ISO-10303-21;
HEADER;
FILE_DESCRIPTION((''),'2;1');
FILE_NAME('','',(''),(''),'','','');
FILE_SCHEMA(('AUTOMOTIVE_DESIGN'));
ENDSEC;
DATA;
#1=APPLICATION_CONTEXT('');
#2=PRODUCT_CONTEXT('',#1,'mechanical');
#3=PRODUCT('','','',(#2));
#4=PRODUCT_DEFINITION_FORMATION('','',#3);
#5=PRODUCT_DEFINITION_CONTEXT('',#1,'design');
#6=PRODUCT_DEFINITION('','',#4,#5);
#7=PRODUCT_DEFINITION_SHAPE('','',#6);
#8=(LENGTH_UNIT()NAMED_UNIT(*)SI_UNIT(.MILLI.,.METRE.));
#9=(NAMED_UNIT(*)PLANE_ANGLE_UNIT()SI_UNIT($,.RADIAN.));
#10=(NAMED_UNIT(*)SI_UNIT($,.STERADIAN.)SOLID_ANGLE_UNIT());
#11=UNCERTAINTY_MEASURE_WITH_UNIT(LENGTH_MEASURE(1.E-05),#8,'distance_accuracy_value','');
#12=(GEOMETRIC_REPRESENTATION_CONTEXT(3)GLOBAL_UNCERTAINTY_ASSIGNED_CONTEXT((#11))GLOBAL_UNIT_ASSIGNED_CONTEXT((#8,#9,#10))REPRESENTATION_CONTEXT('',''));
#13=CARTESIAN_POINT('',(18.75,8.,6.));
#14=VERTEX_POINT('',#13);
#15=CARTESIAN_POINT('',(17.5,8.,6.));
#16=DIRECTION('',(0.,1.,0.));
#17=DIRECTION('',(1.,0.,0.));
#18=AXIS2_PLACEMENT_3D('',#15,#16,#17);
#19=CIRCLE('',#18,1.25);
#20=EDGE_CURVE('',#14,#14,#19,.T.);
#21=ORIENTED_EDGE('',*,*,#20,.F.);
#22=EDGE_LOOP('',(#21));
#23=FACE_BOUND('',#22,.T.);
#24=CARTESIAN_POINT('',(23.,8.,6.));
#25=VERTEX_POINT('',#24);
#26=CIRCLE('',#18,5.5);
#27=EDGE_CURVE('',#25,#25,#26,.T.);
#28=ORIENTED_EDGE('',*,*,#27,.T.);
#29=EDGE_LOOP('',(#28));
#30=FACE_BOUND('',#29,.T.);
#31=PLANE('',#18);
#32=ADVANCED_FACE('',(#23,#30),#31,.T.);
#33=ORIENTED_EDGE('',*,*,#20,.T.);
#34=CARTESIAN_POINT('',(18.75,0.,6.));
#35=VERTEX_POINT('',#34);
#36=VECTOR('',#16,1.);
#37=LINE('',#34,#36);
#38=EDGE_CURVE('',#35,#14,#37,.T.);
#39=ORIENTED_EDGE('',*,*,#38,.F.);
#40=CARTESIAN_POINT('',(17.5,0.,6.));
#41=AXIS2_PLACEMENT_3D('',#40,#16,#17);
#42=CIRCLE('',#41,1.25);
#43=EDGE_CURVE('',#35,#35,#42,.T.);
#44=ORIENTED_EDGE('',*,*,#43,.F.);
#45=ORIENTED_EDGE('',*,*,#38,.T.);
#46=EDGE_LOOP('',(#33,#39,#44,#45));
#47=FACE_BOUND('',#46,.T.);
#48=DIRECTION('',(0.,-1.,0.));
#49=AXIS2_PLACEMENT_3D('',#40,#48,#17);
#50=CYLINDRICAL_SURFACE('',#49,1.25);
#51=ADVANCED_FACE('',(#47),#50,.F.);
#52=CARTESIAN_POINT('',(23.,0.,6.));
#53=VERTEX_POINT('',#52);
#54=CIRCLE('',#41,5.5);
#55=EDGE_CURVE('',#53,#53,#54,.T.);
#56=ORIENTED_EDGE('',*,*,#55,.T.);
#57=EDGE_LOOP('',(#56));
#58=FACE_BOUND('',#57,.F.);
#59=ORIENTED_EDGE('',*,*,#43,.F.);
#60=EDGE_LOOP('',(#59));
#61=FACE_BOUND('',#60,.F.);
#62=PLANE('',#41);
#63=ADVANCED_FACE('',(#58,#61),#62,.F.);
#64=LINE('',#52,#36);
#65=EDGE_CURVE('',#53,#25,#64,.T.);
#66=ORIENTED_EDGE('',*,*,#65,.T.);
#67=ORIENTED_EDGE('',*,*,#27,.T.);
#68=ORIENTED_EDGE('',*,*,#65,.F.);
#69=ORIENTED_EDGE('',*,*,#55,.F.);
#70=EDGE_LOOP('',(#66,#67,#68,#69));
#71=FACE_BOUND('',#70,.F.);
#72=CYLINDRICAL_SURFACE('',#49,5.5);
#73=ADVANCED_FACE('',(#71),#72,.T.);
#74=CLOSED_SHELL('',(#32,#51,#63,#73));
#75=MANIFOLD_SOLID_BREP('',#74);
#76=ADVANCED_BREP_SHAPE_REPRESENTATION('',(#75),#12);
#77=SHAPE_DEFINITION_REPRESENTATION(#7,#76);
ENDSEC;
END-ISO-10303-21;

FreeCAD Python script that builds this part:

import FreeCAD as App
import Part
import Sketcher
from FreeCAD import Vector
Q = App.Units.Quantity

doc = App.newDocument("Part")
body = doc.addObject("PartDesign::Body", "Body")

# Sketch on XY plane
sketch1 = doc.addObject("Sketcher::SketchObject", "Sketch")
body.addObject(sketch1)
sketch1.AttachmentSupport = (doc.XY_Plane, [""])
sketch1.MapMode = "FlatFace"
sketch1.addGeometry(Part.Circle(Vector(0, 0, 0), Vector(0, 0, 1), 1.2), False)
sketch1.addConstraint(Sketcher.Constraint("Coincident", 0, 3, -1, 1))
sketch1.addConstraint(Sketcher.Constraint("Diameter", 0, Q("2.5 mm")))
pad1 = doc.addObject("PartDesign::Pad", "Pad")
body.addObject(pad1)
pad1.Profile = sketch1
pad1.Length = 8
body2 = doc.addObject("PartDesign::Body", "Body001")
doc.recompute()

body.Placement = App.Placement(Vector(0, 0, 0), App.Rotation(Vector(1, 0, 0), 270))
boolean = doc.addObject("PartDesign::Boolean", "Boolean")
body2.addObject(boolean)
boolean.Type = "Fuse"
boolean.addObjects([body])
body3 = doc.addObject("PartDesign::Body", "Body002")
doc.recompute()

body2.Placement = App.Placement(Vector(17.5, 0, 6), App.Rotation(Vector(0, 0, 1), 0))
boolean2 = doc.addObject("PartDesign::Boolean", "Boolean001")
body3.addObject(boolean2)
boolean2.Type = "Fuse"
boolean2.addObjects([body2])
body4 = doc.addObject("PartDesign::Body", "Body003")

# Sketch on XY plane
sketch2 = doc.addObject("Sketcher::SketchObject", "Sketch001")
body4.addObject(sketch2)
sketch2.AttachmentSupport = (doc.getObject("XY_Plane003"), [""])
sketch2.MapMode = "FlatFace"
sketch2.addGeometry(Part.Circle(Vector(0, 0, 0), Vector(0, 0, 1), 6), False)
sketch2.addConstraint(Sketcher.Constraint("Coincident", 0, 3, -1, 1))
sketch2.addConstraint(Sketcher.Constraint("Diameter", 0, Q("11 mm")))
pad2 = doc.addObject("PartDesign::Pad", "Pad001")
body4.addObject(pad2)
pad2.Profile = sketch2
pad2.Length = 8
body5 = doc.addObject("PartDesign::Body", "Body004")
doc.recompute()

body4.Placement = App.Placement(Vector(0, 0, 0), App.Rotation(Vector(1, 0, 0), 270))
boolean3 = doc.addObject("PartDesign::Boolean", "Boolean002")
body5.addObject(boolean3)
boolean3.Type = "Fuse"
boolean3.addObjects([body4])
body6 = doc.addObject("PartDesign::Body", "Body005")
doc.recompute()

body5.Placement = App.Placement(Vector(17.5, 0, 6), App.Rotation(Vector(0, 0, 1), 0))
boolean4 = doc.addObject("PartDesign::Boolean", "Boolean003")
body6.addObject(boolean4)
boolean4.Type = "Fuse"
boolean4.addObjects([body5])
doc.recompute()

boolean5 = doc.addObject("PartDesign::Boolean", "Boolean004")
body6.addObject(boolean5)
boolean5.Type = "Cut"
boolean5.addObjects([body3])

doc.recompute()
